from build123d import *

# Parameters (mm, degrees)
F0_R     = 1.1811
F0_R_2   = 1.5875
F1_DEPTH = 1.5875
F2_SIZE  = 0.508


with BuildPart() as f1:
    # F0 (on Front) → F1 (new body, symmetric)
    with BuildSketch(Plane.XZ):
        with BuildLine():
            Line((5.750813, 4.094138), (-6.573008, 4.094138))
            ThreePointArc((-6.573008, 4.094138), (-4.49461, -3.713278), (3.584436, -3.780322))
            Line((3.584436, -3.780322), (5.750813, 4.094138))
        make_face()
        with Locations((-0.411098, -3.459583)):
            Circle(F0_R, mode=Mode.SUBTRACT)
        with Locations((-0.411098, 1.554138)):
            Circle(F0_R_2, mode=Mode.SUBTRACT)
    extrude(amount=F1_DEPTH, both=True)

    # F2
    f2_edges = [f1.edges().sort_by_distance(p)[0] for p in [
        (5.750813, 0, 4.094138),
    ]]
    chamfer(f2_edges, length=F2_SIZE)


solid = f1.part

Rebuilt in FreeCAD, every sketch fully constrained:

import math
import FreeCAD as App
import Part
import Sketcher

V = App.Vector
Q = App.Units.Quantity


def edges_at(feature, points):
    """Names of the edges that pass closest to the given points."""
    edges = feature.Shape.Edges
    near = lambda p: min(range(len(edges)), key=lambda i: edges[i].distToShape(Part.Vertex(*p))[0])
    return sorted({f"Edge{near(p) + 1}" for p in points})

doc = App.newDocument("Part")
body = doc.addObject("PartDesign::Body", "Body")

# Sketch on XZ plane
sketch1 = body.newObject("Sketcher::SketchObject", "Sketch")
sketch1.AttachmentSupport = (doc.getObject("XZ_Plane"), [""])
sketch1.MapMode = "FlatFace"
sketch1.addGeometry(Part.LineSegment(V(5.8, 4.1, 0), V(-6.6, 4.1, 0)), False)
sketch1.addGeometry(Part.ArcOfCircle(Part.Circle(V(-0.4, 1.6, 0), V(0, 0, 1), 6.7), math.radians(158), math.radians(307)), False)
sketch1.addGeometry(Part.LineSegment(V(3.6, -3.8, 0), V(5.8, 4.1, 0)), False)
sketch1.addGeometry(Part.Circle(V(-0.4, -3.5, 0), V(0, 0, 1), 1.2), False)
sketch1.addGeometry(Part.Circle(V(-0.4, 1.6, 0), V(0, 0, 1), 1.6), False)
sketch1.addConstraint(Sketcher.Constraint("Coincident", 0, 2, 1, 1))
sketch1.addConstraint(Sketcher.Constraint("Coincident", 1, 2, 2, 1))
sketch1.addConstraint(Sketcher.Constraint("Coincident", 2, 2, 0, 1))
sketch1.addConstraint(Sketcher.Constraint("Horizontal", 0))
sketch1.addConstraint(Sketcher.Constraint("Coincident", 4, 3, 1, 3))
sketch1.addConstraint(Sketcher.Constraint("Vertical", 1, 3, 3, 3))
sketch1.addConstraint(Sketcher.Constraint("Diameter", 3, Q("0.093 in")))
sketch1.addConstraint(Sketcher.Constraint("Diameter", 4, Q("0.125 in")))
sketch1.addConstraint(Sketcher.Constraint("DistanceY", 4, 3, 0, 2, Q("0.1 in")))
sketch1.addConstraint(Sketcher.Constraint("Radius", 1, Q("6.664889 mm")))
sketch1.addConstraint(Sketcher.Constraint("DistanceX", 0, 2, 0, 1, Q("12.323821 mm")))
sketch1.addConstraint(Sketcher.Constraint("DistanceY", 3, 3, 1, 3, Q("5.013721 mm")))
sketch1.addConstraint(Sketcher.Constraint("DistanceY", 1, 2, 3, 3, Q("0.320739 mm")))
sketch1.addConstraint(Sketcher.Constraint("DistanceX", 1, 3, -1, 1, Q("0.411097 mm")))
sketch1.addConstraint(Sketcher.Constraint("DistanceY", -1, 1, 1, 3, Q("1.554138 mm")))
pad1 = body.newObject("PartDesign::Pad", "Pad")
pad1.Profile = sketch1
pad1.Length = Q("0.125 in")
pad1.Midplane = True
doc.recompute()

chamfer = body.newObject("PartDesign::Chamfer", "Chamfer")
chamfer.Base = (pad1, edges_at(pad1, [(5.751, 0, 4.094)]))
chamfer.Size = Q("0.02 in")

doc.recompute()
